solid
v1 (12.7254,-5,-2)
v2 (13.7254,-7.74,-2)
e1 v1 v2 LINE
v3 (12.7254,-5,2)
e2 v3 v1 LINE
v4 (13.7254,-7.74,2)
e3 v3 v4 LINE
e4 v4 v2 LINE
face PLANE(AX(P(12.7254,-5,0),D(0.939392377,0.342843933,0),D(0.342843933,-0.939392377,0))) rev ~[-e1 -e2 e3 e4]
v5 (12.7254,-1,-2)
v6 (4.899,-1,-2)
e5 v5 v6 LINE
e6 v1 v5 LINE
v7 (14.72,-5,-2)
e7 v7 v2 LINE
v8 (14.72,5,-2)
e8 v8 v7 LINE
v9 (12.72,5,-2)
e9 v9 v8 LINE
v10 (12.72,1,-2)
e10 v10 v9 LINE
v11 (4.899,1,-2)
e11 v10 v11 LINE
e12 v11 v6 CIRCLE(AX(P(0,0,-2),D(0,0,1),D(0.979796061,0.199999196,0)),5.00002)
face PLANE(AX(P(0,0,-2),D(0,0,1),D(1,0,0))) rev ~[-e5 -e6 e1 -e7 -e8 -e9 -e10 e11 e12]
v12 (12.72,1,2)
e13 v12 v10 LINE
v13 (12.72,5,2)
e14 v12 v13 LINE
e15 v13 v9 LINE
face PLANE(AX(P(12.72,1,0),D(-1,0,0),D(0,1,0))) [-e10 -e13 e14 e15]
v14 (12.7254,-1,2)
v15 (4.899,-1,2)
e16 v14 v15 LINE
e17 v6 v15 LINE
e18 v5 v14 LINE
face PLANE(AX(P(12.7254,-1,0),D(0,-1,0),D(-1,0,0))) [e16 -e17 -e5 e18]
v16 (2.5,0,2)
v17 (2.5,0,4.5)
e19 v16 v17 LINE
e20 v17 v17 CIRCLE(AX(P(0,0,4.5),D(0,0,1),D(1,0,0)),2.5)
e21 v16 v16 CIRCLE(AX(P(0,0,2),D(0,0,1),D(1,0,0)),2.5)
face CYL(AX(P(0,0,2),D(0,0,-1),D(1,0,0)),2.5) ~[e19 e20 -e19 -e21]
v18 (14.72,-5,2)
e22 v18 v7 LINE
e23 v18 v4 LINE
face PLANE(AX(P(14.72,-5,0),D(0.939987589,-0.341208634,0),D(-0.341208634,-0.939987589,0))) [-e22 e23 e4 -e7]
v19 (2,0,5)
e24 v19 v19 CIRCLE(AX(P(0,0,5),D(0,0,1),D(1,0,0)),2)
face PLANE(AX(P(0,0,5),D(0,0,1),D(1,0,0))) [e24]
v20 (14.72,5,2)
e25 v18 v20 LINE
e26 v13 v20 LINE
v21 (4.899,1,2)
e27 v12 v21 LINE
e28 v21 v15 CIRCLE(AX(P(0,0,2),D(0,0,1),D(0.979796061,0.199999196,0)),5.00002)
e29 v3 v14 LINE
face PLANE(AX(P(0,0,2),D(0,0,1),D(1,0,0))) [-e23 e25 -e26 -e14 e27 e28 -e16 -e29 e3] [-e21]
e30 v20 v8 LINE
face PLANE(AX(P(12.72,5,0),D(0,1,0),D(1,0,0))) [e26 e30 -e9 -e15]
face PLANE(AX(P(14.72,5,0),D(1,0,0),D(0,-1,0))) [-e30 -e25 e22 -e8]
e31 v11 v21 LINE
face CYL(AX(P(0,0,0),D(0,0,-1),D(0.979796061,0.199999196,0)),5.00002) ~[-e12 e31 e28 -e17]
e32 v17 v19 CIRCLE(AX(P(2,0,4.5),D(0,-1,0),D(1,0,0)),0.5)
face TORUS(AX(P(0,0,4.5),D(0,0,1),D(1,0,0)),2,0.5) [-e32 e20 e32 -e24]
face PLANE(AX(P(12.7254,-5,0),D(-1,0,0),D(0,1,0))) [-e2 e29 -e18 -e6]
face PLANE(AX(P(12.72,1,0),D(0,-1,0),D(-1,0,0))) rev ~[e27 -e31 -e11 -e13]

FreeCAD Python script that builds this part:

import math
import FreeCAD as App
import Part
import Sketcher
from FreeCAD import Vector
Q = App.Units.Quantity


def edges_at(feature, points):
    """Names of the edges that pass closest to the given points."""
    edges = feature.Shape.Edges
    near = lambda p: min(range(len(edges)), key=lambda i: edges[i].distToShape(Part.Vertex(*p))[0])
    return sorted({f"Edge{near(p) + 1}" for p in points})

doc = App.newDocument("Part")
body = doc.addObject("PartDesign::Body", "Body")

sketch1 = body.newObject("Sketcher::SketchObject", "Sketch")
sketch1.AttachmentSupport = (doc.getObject("XY_Plane"), [""])
sketch1.MapMode = "FlatFace"
sketch1.addGeometry(Part.LineSegment(Vector(12.7, 1, 0), Vector(4.9, 1, 0)), False)
sketch1.addGeometry(Part.ArcOfCircle(Part.Circle(Vector(0, 0, 0), Vector(0, 0, 1), 5), math.radians(12), math.radians(348)), False)
sketch1.addGeometry(Part.LineSegment(Vector(4.9, -1, 0), Vector(12.7, -1, 0)), False)
sketch1.addGeometry(Part.LineSegment(Vector(12.7, -1, 0), Vector(12.7, -5, 0)), False)
sketch1.addGeometry(Part.LineSegment(Vector(12.7, -5, 0), Vector(13.7, -7.7, 0)), False)
sketch1.addGeometry(Part.LineSegment(Vector(13.7, -7.7, 0), Vector(14.7, -5, 0)), False)
sketch1.addGeometry(Part.LineSegment(Vector(14.7, -5, 0), Vector(14.7, 5, 0)), False)
sketch1.addGeometry(Part.LineSegment(Vector(14.7, 5, 0), Vector(12.7, 5, 0)), False)
sketch1.addGeometry(Part.LineSegment(Vector(12.7, 5, 0), Vector(12.7, 1, 0)), False)
sketch1.addConstraint(Sketcher.Constraint("Coincident", 0, 2, 1, 1))
sketch1.addConstraint(Sketcher.Constraint("Coincident", 1, 2, 2, 1))
sketch1.addConstraint(Sketcher.Constraint("Coincident", 2, 2, 3, 1))
sketch1.addConstraint(Sketcher.Constraint("Coincident", 3, 2, 4, 1))
sketch1.addConstraint(Sketcher.Constraint("Coincident", 4, 2, 5, 1))
sketch1.addConstraint(Sketcher.Constraint("Coincident", 5, 2, 6, 1))
sketch1.addConstraint(Sketcher.Constraint("Coincident", 6, 2, 7, 1))
sketch1.addConstraint(Sketcher.Constraint("Coincident", 7, 2, 8, 1))
sketch1.addConstraint(Sketcher.Constraint("Coincident", 8, 2, 0, 1))
sketch1.addConstraint(Sketcher.Constraint("Horizontal", 0))
sketch1.addConstraint(Sketcher.Constraint("Horizontal", 2))
sketch1.addConstraint(Sketcher.Constraint("Vertical", 3))
sketch1.addConstraint(Sketcher.Constraint("Vertical", 6))
sketch1.addConstraint(Sketcher.Constraint("Horizontal", 7))
sketch1.addConstraint(Sketcher.Constraint("Vertical", 8))
sketch1.addConstraint(Sketcher.Constraint("Coincident", 1, 3, -1, 1))
sketch1.addConstraint(Sketcher.Constraint("Horizontal", 3, 2, 5, 2))
sketch1.addConstraint(Sketcher.Constraint("Vertical", 0, 2, 1, 2))
sketch1.addConstraint(Sketcher.Constraint("Equal", 3, 8))
sketch1.addConstraint(Sketcher.Constraint("Radius", 1, Q("5 mm")))
sketch1.addConstraint(Sketcher.Constraint("DistanceX", 7, 2, 7, 1, Q("2 mm")))
sketch1.addConstraint(Sketcher.Constraint("DistanceY", 3, 2, 3, 1, Q("4 mm")))
sketch1.addConstraint(Sketcher.Constraint("DistanceY", 6, 1, 6, 2, Q("10 mm")))
sketch1.addConstraint(Sketcher.Constraint("DistanceX", 3, 2, 4, 2, Q("1 mm")))
sketch1.addConstraint(Sketcher.Constraint("DistanceY", 4, 2, 3, 2, Q("2.74 mm")))
sketch1.addConstraint(Sketcher.Constraint("Angle", 5, Q("70.0495 deg")))
sketch1.addConstraint(Sketcher.Constraint("DistanceX", 0, 2, 0, 1, Q("7.821 mm")))
pad1 = body.newObject("PartDesign::Pad", "Pad")
pad1.Profile = sketch1
pad1.Length = 4
pad1.Midplane = True

sketch2 = body.newObject("Sketcher::SketchObject", "Sketch001")
sketch2.AttachmentSupport = (doc.getObject("XY_Plane"), [""])
sketch2.MapMode = "FlatFace"
sketch2.AttachmentOffset = App.Placement(Vector(0, 0, 2), App.Rotation())
sketch2.addGeometry(Part.Circle(Vector(0, 0, 0), Vector(0, 0, 1), 2.5), False)
sketch2.addConstraint(Sketcher.Constraint("Coincident", 0, 3, -1, 1))
sketch2.addConstraint(Sketcher.Constraint("Diameter", 0, Q("5 mm")))
pad2 = body.newObject("PartDesign::Pad", "Pad001")
pad2.Profile = sketch2
pad2.Length = 3
doc.recompute()

fillet = body.newObject("PartDesign::Fillet", "Fillet")
fillet.Base = (pad2, edges_at(pad2, [(-2.5, 0, 5)]))
fillet.Radius = 0.5

doc.recompute()
